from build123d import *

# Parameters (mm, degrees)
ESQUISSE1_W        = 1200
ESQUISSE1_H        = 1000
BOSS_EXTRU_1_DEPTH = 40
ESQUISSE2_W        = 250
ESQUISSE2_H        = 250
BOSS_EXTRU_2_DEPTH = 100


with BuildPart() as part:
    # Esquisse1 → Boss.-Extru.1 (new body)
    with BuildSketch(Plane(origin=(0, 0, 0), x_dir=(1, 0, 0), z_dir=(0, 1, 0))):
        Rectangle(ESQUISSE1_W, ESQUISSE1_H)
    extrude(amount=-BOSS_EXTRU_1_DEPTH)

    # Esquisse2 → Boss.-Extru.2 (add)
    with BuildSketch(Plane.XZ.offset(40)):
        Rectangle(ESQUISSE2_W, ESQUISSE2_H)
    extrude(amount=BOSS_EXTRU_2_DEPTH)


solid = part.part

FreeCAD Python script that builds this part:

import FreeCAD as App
import Part
import Sketcher

V = App.Vector
Q = App.Units.Quantity


def add_polygon(sketch, points):
    """Adds a closed chain of lines whose ends are joined by coincident constraints."""
    first, n = sketch.GeometryCount, len(points)
    for a, b in zip(points, points[1:] + points[:1]):
        sketch.addGeometry(Part.LineSegment(App.Vector(*a, 0), App.Vector(*b, 0)), False)
    for i in range(n):
        sketch.addConstraint(Sketcher.Constraint("Coincident", first + i, 2, first + (i + 1) % n, 1))

doc = App.newDocument("Part")
body = doc.addObject("PartDesign::Body", "Body")

# Sketch on XZ plane
sketch1 = body.newObject("Sketcher::SketchObject", "Sketch")
sketch1.AttachmentSupport = (doc.getObject("XZ_Plane"), [""])
sketch1.MapMode = "FlatFace"
add_polygon(sketch1, [(-600, -500), (-600, 500), (600, 500), (600, -500)])  # lines 0-3
sketch1.addConstraint(Sketcher.Constraint("Vertical", 0))
sketch1.addConstraint(Sketcher.Constraint("Horizontal", 1))
sketch1.addConstraint(Sketcher.Constraint("Vertical", 2))
sketch1.addConstraint(Sketcher.Constraint("Horizontal", 3))
sketch1.addConstraint(Sketcher.Constraint("Symmetric", 0, 2, 2, 2, -1, 1))
sketch1.addConstraint(Sketcher.Constraint("DistanceX", 1, 1, 1, 2, Q("1200 mm")))
sketch1.addConstraint(Sketcher.Constraint("DistanceY", 0, 1, 0, 2, Q("1000 mm")))
pad1 = body.newObject("PartDesign::Pad", "Pad")
pad1.Profile = sketch1
pad1.Length = 40

# Sketch on XZ plane
sketch2 = body.newObject("Sketcher::SketchObject", "Sketch001")
sketch2.AttachmentSupport = (doc.getObject("XZ_Plane"), [""])
sketch2.MapMode = "FlatFace"
sketch2.AttachmentOffset = App.Placement(V(0, 0, 40), App.Rotation())
add_polygon(sketch2, [(-125, 125), (-125, -125), (125, -125), (125, 125)])  # lines 0-3
sketch2.addConstraint(Sketcher.Constraint("Vertical", 0))
sketch2.addConstraint(Sketcher.Constraint("Horizontal", 1))
sketch2.addConstraint(Sketcher.Constraint("Vertical", 2))
sketch2.addConstraint(Sketcher.Constraint("Horizontal", 3))
sketch2.addConstraint(Sketcher.Constraint("Symmetric", 0, 2, 2, 2, -1, 1))
sketch2.addConstraint(Sketcher.Constraint("Equal", 3, 0))
sketch2.addConstraint(Sketcher.Constraint("DistanceX", 1, 1, 1, 2, Q("250 mm")))
pad2 = body.newObject("PartDesign::Pad", "Pad001")
pad2.Profile = sketch2
pad2.Length = 100

doc.recompute()
